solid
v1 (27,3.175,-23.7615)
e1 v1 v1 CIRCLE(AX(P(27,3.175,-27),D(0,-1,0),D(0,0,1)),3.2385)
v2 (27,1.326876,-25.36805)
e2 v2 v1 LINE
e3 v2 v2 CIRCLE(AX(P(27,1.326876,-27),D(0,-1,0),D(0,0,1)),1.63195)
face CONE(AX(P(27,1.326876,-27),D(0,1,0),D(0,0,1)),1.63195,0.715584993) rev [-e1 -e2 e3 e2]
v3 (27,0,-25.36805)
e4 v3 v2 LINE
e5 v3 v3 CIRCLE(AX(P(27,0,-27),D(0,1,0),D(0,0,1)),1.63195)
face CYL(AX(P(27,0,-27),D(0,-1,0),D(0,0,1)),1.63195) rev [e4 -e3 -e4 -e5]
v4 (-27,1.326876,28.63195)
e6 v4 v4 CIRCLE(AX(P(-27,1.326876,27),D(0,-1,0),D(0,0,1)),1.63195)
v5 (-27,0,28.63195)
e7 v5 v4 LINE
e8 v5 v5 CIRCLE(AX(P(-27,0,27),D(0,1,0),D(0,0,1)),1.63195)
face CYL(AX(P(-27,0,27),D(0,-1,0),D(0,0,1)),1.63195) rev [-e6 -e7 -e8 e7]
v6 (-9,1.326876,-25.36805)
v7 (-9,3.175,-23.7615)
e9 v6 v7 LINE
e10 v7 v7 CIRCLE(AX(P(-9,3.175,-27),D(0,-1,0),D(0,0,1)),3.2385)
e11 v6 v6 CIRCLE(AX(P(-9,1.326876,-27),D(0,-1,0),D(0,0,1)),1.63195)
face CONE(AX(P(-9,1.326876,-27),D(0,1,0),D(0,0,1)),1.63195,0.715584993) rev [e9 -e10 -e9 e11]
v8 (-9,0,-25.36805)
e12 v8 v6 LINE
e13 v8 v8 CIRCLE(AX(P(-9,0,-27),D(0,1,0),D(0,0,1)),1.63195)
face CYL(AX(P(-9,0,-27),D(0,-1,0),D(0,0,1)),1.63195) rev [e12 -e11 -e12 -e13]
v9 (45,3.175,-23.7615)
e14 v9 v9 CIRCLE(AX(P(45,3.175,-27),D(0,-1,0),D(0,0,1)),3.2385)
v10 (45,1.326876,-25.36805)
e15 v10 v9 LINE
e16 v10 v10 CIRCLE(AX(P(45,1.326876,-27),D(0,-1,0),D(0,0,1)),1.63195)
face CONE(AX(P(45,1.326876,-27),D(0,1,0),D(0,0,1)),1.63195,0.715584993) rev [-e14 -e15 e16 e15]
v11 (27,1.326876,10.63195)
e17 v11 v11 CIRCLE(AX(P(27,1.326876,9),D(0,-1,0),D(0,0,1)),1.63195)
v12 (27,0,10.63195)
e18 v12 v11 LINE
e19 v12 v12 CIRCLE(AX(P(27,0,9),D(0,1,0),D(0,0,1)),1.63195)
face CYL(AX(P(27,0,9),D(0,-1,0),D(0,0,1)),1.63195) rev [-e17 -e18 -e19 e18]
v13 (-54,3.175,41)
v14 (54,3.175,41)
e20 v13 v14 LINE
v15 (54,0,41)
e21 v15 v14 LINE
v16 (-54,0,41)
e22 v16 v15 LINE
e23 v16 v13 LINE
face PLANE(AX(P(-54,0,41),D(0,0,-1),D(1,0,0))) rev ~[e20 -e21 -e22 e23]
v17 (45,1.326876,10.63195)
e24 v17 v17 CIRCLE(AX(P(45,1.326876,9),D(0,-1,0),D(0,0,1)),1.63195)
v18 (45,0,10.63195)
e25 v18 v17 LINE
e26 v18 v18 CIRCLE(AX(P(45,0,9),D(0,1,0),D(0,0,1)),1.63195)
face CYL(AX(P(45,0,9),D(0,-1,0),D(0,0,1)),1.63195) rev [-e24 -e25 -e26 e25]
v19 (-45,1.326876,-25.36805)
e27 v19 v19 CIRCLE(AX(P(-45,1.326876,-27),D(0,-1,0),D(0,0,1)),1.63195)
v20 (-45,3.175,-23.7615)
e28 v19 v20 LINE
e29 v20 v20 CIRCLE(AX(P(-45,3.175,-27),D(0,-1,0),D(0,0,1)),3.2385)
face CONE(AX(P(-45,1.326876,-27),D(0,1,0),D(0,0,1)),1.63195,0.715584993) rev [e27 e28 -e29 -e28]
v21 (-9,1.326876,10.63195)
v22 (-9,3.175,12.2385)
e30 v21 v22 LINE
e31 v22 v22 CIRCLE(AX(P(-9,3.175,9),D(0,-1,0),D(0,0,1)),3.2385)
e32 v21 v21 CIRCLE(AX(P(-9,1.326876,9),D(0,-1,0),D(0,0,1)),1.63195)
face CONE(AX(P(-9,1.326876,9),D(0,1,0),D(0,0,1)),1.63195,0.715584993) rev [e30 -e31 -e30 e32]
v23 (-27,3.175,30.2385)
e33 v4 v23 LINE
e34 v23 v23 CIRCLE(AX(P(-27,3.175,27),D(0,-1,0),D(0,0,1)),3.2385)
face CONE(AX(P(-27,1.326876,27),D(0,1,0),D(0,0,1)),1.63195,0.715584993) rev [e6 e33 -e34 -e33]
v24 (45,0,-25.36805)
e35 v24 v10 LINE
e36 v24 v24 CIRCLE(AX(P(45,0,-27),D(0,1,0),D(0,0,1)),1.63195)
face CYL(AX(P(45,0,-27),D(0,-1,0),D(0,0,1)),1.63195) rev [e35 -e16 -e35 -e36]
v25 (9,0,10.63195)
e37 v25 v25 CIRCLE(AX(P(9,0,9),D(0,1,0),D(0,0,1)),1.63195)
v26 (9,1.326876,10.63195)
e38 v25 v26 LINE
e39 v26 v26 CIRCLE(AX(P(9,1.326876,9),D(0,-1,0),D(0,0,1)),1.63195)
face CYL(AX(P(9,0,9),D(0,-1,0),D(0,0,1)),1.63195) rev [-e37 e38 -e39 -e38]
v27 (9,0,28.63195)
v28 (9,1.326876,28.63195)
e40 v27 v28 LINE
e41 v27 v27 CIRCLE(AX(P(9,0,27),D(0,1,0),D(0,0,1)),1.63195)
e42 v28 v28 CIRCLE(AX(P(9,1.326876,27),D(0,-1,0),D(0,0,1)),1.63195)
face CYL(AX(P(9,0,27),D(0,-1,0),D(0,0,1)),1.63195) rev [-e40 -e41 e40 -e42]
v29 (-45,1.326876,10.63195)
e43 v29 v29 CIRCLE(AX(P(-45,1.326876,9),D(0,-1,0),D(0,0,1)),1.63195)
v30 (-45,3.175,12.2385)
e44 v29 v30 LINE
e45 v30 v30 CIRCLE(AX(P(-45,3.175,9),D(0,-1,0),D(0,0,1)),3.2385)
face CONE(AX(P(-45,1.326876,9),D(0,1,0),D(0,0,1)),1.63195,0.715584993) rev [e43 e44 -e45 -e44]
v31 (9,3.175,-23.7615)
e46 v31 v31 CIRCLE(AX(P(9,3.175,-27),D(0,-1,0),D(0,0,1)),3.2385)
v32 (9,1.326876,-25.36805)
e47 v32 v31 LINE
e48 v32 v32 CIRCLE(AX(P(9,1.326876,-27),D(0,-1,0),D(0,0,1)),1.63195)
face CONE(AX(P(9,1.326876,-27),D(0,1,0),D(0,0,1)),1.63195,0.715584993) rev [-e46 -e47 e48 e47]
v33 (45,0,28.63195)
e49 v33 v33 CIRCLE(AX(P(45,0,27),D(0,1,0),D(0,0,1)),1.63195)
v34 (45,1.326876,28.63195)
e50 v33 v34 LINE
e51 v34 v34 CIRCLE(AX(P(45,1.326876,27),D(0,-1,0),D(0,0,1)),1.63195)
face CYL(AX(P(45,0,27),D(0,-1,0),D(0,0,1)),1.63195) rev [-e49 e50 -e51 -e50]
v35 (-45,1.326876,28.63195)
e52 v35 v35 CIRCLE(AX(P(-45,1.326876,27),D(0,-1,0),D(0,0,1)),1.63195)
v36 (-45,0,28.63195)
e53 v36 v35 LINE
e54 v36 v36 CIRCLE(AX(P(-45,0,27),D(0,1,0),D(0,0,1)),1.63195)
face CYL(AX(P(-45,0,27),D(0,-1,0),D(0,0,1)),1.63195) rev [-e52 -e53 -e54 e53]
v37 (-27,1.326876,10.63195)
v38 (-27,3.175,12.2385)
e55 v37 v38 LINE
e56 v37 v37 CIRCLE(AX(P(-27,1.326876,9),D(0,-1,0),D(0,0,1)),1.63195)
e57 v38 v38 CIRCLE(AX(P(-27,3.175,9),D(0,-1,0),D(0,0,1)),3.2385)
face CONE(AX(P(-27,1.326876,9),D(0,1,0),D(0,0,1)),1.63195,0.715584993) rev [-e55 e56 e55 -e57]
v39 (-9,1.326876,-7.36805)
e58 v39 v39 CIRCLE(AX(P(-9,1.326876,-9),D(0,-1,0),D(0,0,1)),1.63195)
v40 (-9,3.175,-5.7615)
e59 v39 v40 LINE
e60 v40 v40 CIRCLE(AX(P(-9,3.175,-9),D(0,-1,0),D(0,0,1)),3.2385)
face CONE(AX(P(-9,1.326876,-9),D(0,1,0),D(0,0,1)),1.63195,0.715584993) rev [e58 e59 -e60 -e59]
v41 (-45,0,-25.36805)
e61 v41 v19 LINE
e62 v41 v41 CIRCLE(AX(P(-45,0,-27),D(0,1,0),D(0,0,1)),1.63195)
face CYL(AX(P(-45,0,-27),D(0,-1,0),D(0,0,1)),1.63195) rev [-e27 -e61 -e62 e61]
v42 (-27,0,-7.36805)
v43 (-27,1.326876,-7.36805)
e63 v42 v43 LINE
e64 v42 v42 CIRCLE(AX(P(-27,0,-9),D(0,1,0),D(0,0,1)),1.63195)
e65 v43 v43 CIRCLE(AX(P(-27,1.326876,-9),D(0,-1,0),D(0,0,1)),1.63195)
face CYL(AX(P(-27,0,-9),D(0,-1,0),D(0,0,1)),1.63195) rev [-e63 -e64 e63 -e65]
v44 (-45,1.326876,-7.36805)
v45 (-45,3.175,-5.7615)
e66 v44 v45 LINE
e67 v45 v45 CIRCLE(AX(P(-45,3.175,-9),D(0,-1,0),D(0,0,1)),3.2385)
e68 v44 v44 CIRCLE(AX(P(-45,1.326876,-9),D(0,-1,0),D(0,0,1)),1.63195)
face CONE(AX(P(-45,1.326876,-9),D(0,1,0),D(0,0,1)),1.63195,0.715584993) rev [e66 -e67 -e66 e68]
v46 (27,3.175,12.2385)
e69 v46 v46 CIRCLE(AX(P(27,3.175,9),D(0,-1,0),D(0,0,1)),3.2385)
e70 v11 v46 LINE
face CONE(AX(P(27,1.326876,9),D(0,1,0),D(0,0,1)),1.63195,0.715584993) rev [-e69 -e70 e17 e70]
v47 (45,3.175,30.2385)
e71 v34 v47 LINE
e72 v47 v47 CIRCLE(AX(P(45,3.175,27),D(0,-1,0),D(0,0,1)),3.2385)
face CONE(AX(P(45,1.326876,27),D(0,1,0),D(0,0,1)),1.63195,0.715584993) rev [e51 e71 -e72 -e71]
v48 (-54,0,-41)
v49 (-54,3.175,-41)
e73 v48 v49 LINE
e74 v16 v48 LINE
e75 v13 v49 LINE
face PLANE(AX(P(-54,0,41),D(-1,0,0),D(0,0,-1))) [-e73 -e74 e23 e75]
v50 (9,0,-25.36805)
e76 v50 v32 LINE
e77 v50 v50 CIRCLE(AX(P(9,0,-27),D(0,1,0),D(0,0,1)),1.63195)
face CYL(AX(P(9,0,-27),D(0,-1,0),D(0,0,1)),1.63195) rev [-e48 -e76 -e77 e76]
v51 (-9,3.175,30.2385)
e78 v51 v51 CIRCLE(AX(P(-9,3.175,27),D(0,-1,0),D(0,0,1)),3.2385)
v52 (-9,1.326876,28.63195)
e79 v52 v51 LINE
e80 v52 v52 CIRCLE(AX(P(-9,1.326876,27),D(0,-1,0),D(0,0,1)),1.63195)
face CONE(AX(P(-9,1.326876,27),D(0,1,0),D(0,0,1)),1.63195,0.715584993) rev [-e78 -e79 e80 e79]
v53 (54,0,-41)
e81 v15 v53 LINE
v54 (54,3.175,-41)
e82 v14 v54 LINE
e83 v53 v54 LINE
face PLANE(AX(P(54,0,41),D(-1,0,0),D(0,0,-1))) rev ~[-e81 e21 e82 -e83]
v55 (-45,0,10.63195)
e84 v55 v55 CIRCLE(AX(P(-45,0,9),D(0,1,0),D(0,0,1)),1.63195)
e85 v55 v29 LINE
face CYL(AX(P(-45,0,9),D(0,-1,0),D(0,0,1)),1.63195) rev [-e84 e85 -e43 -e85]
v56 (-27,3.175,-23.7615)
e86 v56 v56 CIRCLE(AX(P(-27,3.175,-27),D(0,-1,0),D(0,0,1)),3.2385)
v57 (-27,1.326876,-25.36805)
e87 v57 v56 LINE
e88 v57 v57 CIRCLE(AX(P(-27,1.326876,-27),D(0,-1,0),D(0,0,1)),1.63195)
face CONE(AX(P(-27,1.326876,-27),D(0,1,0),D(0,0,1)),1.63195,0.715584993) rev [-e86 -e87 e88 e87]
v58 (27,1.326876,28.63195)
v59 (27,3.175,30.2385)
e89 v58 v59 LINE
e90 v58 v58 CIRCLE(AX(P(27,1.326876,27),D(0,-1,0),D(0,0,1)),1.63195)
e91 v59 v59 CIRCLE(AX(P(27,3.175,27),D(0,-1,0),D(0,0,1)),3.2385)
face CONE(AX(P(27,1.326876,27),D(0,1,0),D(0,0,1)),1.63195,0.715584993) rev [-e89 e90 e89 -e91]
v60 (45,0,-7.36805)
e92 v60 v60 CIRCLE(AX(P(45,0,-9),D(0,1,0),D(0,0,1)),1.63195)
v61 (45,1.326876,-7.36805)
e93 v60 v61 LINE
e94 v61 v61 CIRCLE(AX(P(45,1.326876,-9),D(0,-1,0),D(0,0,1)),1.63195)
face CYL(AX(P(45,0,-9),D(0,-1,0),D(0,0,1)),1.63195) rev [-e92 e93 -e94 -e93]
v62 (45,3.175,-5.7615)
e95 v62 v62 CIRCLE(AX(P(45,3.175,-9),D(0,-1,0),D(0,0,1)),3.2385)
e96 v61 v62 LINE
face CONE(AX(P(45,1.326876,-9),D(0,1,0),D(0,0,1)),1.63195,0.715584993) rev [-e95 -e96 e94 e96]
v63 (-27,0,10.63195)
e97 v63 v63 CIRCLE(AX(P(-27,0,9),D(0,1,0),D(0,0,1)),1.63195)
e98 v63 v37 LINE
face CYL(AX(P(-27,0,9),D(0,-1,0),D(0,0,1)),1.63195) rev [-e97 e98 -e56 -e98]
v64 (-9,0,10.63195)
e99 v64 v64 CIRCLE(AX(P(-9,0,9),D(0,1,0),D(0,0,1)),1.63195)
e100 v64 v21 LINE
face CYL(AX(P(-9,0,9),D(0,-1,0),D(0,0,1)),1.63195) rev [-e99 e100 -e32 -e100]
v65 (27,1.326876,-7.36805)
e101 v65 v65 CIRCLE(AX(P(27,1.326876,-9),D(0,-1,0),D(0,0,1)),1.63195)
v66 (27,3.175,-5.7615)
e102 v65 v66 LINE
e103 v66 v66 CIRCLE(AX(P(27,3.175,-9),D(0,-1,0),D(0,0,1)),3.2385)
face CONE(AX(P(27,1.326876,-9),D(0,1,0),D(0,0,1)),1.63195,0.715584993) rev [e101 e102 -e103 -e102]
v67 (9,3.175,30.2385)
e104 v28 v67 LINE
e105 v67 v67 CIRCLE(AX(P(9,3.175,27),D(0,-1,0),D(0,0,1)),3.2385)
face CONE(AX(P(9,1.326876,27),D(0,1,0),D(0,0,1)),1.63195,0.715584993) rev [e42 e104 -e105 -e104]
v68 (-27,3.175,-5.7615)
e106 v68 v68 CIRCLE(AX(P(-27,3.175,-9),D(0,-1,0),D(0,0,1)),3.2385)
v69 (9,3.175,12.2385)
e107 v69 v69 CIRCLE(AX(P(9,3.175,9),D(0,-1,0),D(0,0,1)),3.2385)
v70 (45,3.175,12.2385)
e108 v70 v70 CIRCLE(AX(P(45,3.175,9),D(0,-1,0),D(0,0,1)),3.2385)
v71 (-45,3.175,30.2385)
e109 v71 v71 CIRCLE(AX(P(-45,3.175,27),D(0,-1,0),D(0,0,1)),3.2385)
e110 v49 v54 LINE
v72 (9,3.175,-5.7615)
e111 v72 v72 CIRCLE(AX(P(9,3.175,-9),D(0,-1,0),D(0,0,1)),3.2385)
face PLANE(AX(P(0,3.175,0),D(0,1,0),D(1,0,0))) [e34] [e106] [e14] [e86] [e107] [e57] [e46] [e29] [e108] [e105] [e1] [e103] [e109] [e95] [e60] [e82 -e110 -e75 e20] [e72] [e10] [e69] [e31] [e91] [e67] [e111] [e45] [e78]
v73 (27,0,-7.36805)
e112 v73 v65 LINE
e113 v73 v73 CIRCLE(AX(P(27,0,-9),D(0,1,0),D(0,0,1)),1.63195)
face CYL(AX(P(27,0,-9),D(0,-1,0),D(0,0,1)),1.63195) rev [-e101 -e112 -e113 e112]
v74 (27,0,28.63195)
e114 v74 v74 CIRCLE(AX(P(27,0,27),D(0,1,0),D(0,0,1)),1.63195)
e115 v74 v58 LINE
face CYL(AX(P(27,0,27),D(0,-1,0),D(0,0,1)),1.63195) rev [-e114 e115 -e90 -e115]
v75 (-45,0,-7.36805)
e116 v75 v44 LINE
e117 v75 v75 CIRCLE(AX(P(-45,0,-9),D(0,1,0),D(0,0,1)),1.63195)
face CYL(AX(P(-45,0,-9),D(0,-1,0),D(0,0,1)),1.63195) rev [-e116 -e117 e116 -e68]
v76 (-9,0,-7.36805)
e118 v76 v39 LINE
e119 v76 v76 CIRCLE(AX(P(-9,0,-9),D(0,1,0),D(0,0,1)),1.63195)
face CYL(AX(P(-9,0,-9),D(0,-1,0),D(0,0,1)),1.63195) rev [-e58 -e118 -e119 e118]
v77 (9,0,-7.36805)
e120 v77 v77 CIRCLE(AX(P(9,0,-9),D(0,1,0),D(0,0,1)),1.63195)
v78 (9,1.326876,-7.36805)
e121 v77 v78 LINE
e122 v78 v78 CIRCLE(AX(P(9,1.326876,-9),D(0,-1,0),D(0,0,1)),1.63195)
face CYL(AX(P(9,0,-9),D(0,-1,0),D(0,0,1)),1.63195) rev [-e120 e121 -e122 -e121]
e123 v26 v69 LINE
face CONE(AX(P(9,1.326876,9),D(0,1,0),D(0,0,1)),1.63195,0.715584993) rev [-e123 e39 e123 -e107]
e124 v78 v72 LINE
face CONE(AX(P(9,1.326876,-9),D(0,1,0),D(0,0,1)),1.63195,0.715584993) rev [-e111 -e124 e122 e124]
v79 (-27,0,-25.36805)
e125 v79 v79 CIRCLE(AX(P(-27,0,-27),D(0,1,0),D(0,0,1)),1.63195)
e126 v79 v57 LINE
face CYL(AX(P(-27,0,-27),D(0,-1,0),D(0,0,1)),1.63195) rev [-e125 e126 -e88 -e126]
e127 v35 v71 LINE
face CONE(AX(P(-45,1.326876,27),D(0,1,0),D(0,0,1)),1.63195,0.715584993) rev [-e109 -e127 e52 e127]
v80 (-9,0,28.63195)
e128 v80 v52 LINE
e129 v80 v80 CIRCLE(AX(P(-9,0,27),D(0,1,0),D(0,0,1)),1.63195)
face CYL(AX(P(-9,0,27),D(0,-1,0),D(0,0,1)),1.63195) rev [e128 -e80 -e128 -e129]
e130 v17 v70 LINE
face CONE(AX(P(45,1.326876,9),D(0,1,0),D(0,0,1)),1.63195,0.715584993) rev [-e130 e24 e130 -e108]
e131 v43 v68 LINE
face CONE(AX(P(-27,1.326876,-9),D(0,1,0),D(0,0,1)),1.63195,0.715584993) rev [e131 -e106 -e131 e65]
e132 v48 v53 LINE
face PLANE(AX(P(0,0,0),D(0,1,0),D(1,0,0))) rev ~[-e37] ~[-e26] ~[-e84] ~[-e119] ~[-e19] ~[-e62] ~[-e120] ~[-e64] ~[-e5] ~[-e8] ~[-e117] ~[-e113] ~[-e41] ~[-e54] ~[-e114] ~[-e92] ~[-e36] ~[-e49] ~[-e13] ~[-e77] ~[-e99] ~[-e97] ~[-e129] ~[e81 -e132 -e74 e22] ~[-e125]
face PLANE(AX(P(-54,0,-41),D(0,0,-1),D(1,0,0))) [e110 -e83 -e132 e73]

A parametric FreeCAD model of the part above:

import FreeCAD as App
import Part
import Sketcher
Q = App.Units.Quantity

doc = App.newDocument("Part")
body = doc.addObject("PartDesign::Body", "Body")

# Sketch on XZ plane
sketch1 = doc.addObject("Sketcher::SketchObject", "Sketch")
body.addObject(sketch1)
sketch1.AttachmentSupport = (doc.XZ_Plane, [""])
sketch1.MapMode = "FlatFace"
sketch1.addGeometry([
    Part.LineSegment(App.Vector(-54, -41, 0), App.Vector(-54, 41, 0)),  # 0
    Part.LineSegment(App.Vector(-54, 41, 0), App.Vector(54, 41, 0)),  # 1
    Part.LineSegment(App.Vector(54, 41, 0), App.Vector(54, -41, 0)),  # 2
    Part.LineSegment(App.Vector(54, -41, 0), App.Vector(-54, -41, 0)),  # 3
    Part.Circle(App.Vector(-45, 27, 0), App.Vector(0, 0, 1), 1.6),  # 4
    Part.Circle(App.Vector(-27, 27, 0), App.Vector(0, 0, 1), 1.6),  # 5
    Part.Circle(App.Vector(-9, 27, 0), App.Vector(0, 0, 1), 1.6),  # 6
    Part.Circle(App.Vector(-45, 9, 0), App.Vector(0, 0, 1), 1.6),  # 7
    Part.Circle(App.Vector(-27, 9, 0), App.Vector(0, 0, 1), 1.6),  # 8
    Part.Circle(App.Vector(-9, 9, 0), App.Vector(0, 0, 1), 1.6),  # 9
    Part.Circle(App.Vector(9, 27, 0), App.Vector(0, 0, 1), 1.6),  # 10
    Part.Circle(App.Vector(27, 27, 0), App.Vector(0, 0, 1), 1.6),  # 11
    Part.Circle(App.Vector(45, 27, 0), App.Vector(0, 0, 1), 1.6),  # 12
    Part.Circle(App.Vector(9, 9, 0), App.Vector(0, 0, 1), 1.6),  # 13
    Part.Circle(App.Vector(27, 9, 0), App.Vector(0, 0, 1), 1.6),  # 14
    Part.Circle(App.Vector(45, 9, 0), App.Vector(0, 0, 1), 1.6),  # 15
    Part.Circle(App.Vector(-45, -9, 0), App.Vector(0, 0, 1), 1.6),  # 16
    Part.Circle(App.Vector(-27, -9, 0), App.Vector(0, 0, 1), 1.6),  # 17
    Part.Circle(App.Vector(-9, -9, 0), App.Vector(0, 0, 1), 1.6),  # 18
    Part.Circle(App.Vector(-45, -27, 0), App.Vector(0, 0, 1), 1.6),  # 19
    Part.Circle(App.Vector(-27, -27, 0), App.Vector(0, 0, 1), 1.6),  # 20
    Part.Circle(App.Vector(-9, -27, 0), App.Vector(0, 0, 1), 1.6),  # 21
    Part.Circle(App.Vector(9, -9, 0), App.Vector(0, 0, 1), 1.6),  # 22
    Part.Circle(App.Vector(27, -9, 0), App.Vector(0, 0, 1), 1.6),  # 23
    Part.Circle(App.Vector(45, -9, 0), App.Vector(0, 0, 1), 1.6),  # 24
    Part.Circle(App.Vector(9, -27, 0), App.Vector(0, 0, 1), 1.6),  # 25
    Part.Circle(App.Vector(27, -27, 0), App.Vector(0, 0, 1), 1.6),  # 26
    Part.Circle(App.Vector(45, -27, 0), App.Vector(0, 0, 1), 1.6),  # 27
], False)
sketch1.addConstraint([
    Sketcher.Constraint("Coincident", 0, 2, 1, 1),
    Sketcher.Constraint("Coincident", 1, 2, 2, 1),
    Sketcher.Constraint("Coincident", 2, 2, 3, 1),
    Sketcher.Constraint("Coincident", 3, 2, 0, 1),
    Sketcher.Constraint("Vertical", 0),
    Sketcher.Constraint("Horizontal", 1),
    Sketcher.Constraint("Vertical", 2),
    Sketcher.Constraint("Horizontal", 3),
    Sketcher.Constraint("Equal", 4, 5),
    Sketcher.Constraint("Equal", 5, 6),
    Sketcher.Constraint("Equal", 6, 7),
    Sketcher.Constraint("Equal", 7, 8),
    Sketcher.Constraint("Equal", 8, 9),
    Sketcher.Constraint("Equal", 9, 10),
    Sketcher.Constraint("Equal", 10, 11),
    Sketcher.Constraint("Equal", 11, 12),
    Sketcher.Constraint("Equal", 12, 13),
    Sketcher.Constraint("Equal", 13, 14),
    Sketcher.Constraint("Equal", 14, 15),
    Sketcher.Constraint("Equal", 15, 16),
    Sketcher.Constraint("Equal", 16, 17),
    Sketcher.Constraint("Equal", 17, 18),
    Sketcher.Constraint("Equal", 18, 19),
    Sketcher.Constraint("Equal", 19, 20),
    Sketcher.Constraint("Equal", 20, 21),
    Sketcher.Constraint("Equal", 21, 22),
    Sketcher.Constraint("Equal", 22, 23),
    Sketcher.Constraint("Equal", 23, 24),
    Sketcher.Constraint("Equal", 24, 25),
    Sketcher.Constraint("Equal", 25, 26),
    Sketcher.Constraint("Equal", 26, 27),
    Sketcher.Constraint("Symmetric", 15, 3, 16, 3, -1, 1),
    Sketcher.Constraint("Symmetric", 14, 3, 17, 3, -1, 1),
    Sketcher.Constraint("Symmetric", 13, 3, 18, 3, -1, 1),
    Sketcher.Constraint("Symmetric", 12, 3, 19, 3, -1, 1),
    Sketcher.Constraint("Symmetric", 11, 3, 20, 3, -1, 1),
    Sketcher.Constraint("Symmetric", 10, 3, 21, 3, -1, 1),
    Sketcher.Constraint("Symmetric", 9, 3, 22, 3, -1, 1),
    Sketcher.Constraint("Symmetric", 8, 3, 23, 3, -1, 1),
    Sketcher.Constraint("Symmetric", 7, 3, 24, 3, -1, 1),
    Sketcher.Constraint("Symmetric", 6, 3, 25, 3, -1, 1),
    Sketcher.Constraint("Symmetric", 5, 3, 26, 3, -1, 1),
    Sketcher.Constraint("Symmetric", 4, 3, 27, 3, -1, 1),
    Sketcher.Constraint("Symmetric", 0, 2, 2, 2, -1, 1),
    Sketcher.Constraint("Symmetric", 6, 3, 10, 3, -2),
    Sketcher.Constraint("Symmetric", 5, 3, 11, 3, -2),
    Sketcher.Constraint("Symmetric", 4, 3, 12, 3, -2),
    Sketcher.Constraint("Symmetric", 9, 3, 13, 3, -2),
    Sketcher.Constraint("Symmetric", 8, 3, 14, 3, -2),
    Sketcher.Constraint("Symmetric", 7, 3, 15, 3, -2),
    Sketcher.Constraint("Horizontal", 4, 3, 5, 3),
    Sketcher.Constraint("Horizontal", 5, 3, 6, 3),
    Sketcher.Constraint("Horizontal", 7, 3, 8, 3),
    Sketcher.Constraint("Horizontal", 8, 3, 9, 3),
    Sketcher.Constraint("Vertical", 4, 3, 7, 3),
    Sketcher.Constraint("Vertical", 5, 3, 8, 3),
    Sketcher.Constraint("Vertical", 6, 3, 9, 3),
    Sketcher.Constraint("DistanceX", 1, 1, 1, 2, Q("108 mm")),
    Sketcher.Constraint("DistanceY", 0, 1, 0, 2, Q("82 mm")),
    Sketcher.Constraint("DistanceX", 4, 3, -1, 1, Q("45 mm")),
    Sketcher.Constraint("DistanceY", -1, 1, 4, 3, Q("27 mm")),
    Sketcher.Constraint("DistanceX", 5, 3, -1, 1, Q("27 mm")),
    Sketcher.Constraint("DistanceX", 6, 3, -1, 1, Q("9 mm")),
    Sketcher.Constraint("DistanceY", -1, 1, 7, 3, Q("9 mm")),
    Sketcher.Constraint("Diameter", 4, Q("3.2639 mm")),
])
pad1 = doc.addObject("PartDesign::Pad", "Pad")
body.addObject(pad1)
pad1.Profile = sketch1
pad1.Length = 3.175
pad1.Reversed = True

# Sketch on YZ plane
sketch2 = doc.addObject("Sketcher::SketchObject", "Sketch001")
body.addObject(sketch2)
sketch2.AttachmentSupport = (doc.YZ_Plane, [""])
sketch2.MapMode = "FlatFace"
sketch2.AttachmentOffset = App.Placement(App.Vector(0, 0, 45), App.Rotation())
sketch2.addGeometry([
    Part.LineSegment(App.Vector(0, 27, 0), App.Vector(3.2, 27, 0)),  # 0
    Part.LineSegment(App.Vector(3.2, 27, 0), App.Vector(3.2, 30.2, 0)),  # 1
    Part.LineSegment(App.Vector(3.2, 30.2, 0), App.Vector(1.3, 28.6, 0)),  # 2
    Part.LineSegment(App.Vector(1.3, 28.6, 0), App.Vector(0, 28.6, 0)),  # 3
    Part.LineSegment(App.Vector(0, 28.6, 0), App.Vector(0, 27, 0)),  # 4
], False)
sketch2.addGeometry(Part.LineSegment(App.Vector(3.2, 27, 0), App.Vector(0, 27, 0)), True)  # axis
sketch2.addConstraint([
    Sketcher.Constraint("Coincident", 0, 2, 1, 1),
    Sketcher.Constraint("Coincident", 1, 2, 2, 1),
    Sketcher.Constraint("Coincident", 2, 2, 3, 1),
    Sketcher.Constraint("Coincident", 3, 2, 4, 1),
    Sketcher.Constraint("Coincident", 4, 2, 0, 1),
    Sketcher.Constraint("Horizontal", 0),
    Sketcher.Constraint("Vertical", 1),
    Sketcher.Constraint("Horizontal", 3),
    Sketcher.Constraint("Vertical", 4),
    Sketcher.Constraint("Horizontal", 5),
    Sketcher.Constraint("Coincident", 5, 1, 0, 2),
    Sketcher.Constraint("PointOnObject", 3, 2, -2),
    Sketcher.Constraint("PointOnObject", 5, 2, -2),
    Sketcher.Constraint("Angle", 2, Q("-139 deg")),
    Sketcher.Constraint("DistanceY", -1, 1, 0, 2, Q("27 mm")),
    Sketcher.Constraint("DistanceX", 0, 1, 0, 2, Q("3.175 mm")),
    Sketcher.Constraint("DistanceY", 1, 1, 1, 2, Q("3.2385 mm")),
    Sketcher.Constraint("DistanceY", 4, 2, 4, 1, Q("1.63195 mm")),
])
groove = doc.addObject("PartDesign::Groove", "Groove")
body.addObject(groove)
groove.Profile = sketch2
groove.ReferenceAxis = (sketch2, ["Axis0"])
groove.Angle = 360
doc.recompute()

linearpattern = doc.addObject("PartDesign::LinearPattern", "LinearPattern")
body.addObject(linearpattern)
linearpattern.Originals = [groove]
linearpattern.Direction = (doc.X_Axis, [""])
linearpattern.Mode = "offset"
linearpattern.Offset = 18
linearpattern.Occurrences = 2
linearpattern.Reversed = True
body.Tip = linearpattern
doc.recompute()

linearpattern2 = doc.addObject("PartDesign::LinearPattern", "LinearPattern001")
body.addObject(linearpattern2)
linearpattern2.Originals = [groove]
linearpattern2.Direction = (doc.X_Axis, [""])
linearpattern2.Mode = "offset"
linearpattern2.Offset = 36
linearpattern2.Occurrences = 2
linearpattern2.Reversed = True
body.Tip = linearpattern2
doc.recompute()

linearpattern3 = doc.addObject("PartDesign::LinearPattern", "LinearPattern002")
body.addObject(linearpattern3)
linearpattern3.Originals = [groove]
linearpattern3.Direction = (doc.X_Axis, [""])
linearpattern3.Mode = "offset"
linearpattern3.Offset = 54
linearpattern3.Occurrences = 2
linearpattern3.Reversed = True
body.Tip = linearpattern3
doc.recompute()

linearpattern4 = doc.addObject("PartDesign::LinearPattern", "LinearPattern003")
body.addObject(linearpattern4)
linearpattern4.Originals = [groove]
linearpattern4.Direction = (doc.X_Axis, [""])
linearpattern4.Mode = "offset"
linearpattern4.Offset = 72
linearpattern4.Occurrences = 2
linearpattern4.Reversed = True
body.Tip = linearpattern4
doc.recompute()

linearpattern5 = doc.addObject("PartDesign::LinearPattern", "LinearPattern004")
body.addObject(linearpattern5)
linearpattern5.Originals = [groove]
linearpattern5.Direction = (doc.X_Axis, [""])
linearpattern5.Mode = "offset"
linearpattern5.Offset = 90
linearpattern5.Occurrences = 2
linearpattern5.Reversed = True
body.Tip = linearpattern5
doc.recompute()

datumline = doc.addObject("PartDesign::Line", "DatumLine")
body.addObject(datumline)
datumline.Placement = App.Placement(App.Vector(0, 0, 0), App.Rotation(App.Vector(0, 0, 1), App.Vector(-0.980580676, 0, -0.196116135)))
linearpattern6 = doc.addObject("PartDesign::LinearPattern", "LinearPattern005")
body.addObject(linearpattern6)
linearpattern6.Originals = [groove]
linearpattern6.Direction = (datumline, [""])
linearpattern6.Mode = "offset"
linearpattern6.Offset = 91.782351
linearpattern6.Occurrences = 2
body.Tip = linearpattern6
doc.recompute()

datumline2 = doc.addObject("PartDesign::Line", "DatumLine001")
body.addObject(datumline2)
datumline2.Placement = App.Placement(App.Vector(0, 0, 0), App.Rotation(App.Vector(0, 0, 1), App.Vector(-0.9701425, 0, -0.242535625)))
linearpattern7 = doc.addObject("PartDesign::LinearPattern", "LinearPattern006")
body.addObject(linearpattern7)
linearpattern7.Originals = [groove]
linearpattern7.Direction = (datumline2, [""])
linearpattern7.Mode = "offset"
linearpattern7.Offset = 74.215901
linearpattern7.Occurrences = 2
body.Tip = linearpattern7
doc.recompute()

datumline3 = doc.addObject("PartDesign::Line", "DatumLine002")
body.addObject(datumline3)
datumline3.Placement = App.Placement(App.Vector(0, 0, 0), App.Rotation(App.Vector(0, 0, 1), App.Vector(-0.948683298, 0, -0.316227766)))
linearpattern8 = doc.addObject("PartDesign::LinearPattern", "LinearPattern007")
body.addObject(linearpattern8)
linearpattern8.Originals = [groove]
linearpattern8.Direction = (datumline3, [""])
linearpattern8.Mode = "offset"
linearpattern8.Offset = 56.920998
linearpattern8.Occurrences = 2
body.Tip = linearpattern8
doc.recompute()

datumline4 = doc.addObject("PartDesign::Line", "DatumLine003")
body.addObject(datumline4)
datumline4.Placement = App.Placement(App.Vector(0, 0, 0), App.Rotation(App.Vector(0, 0, 1), App.Vector(-0.894427191, 0, -0.447213595)))
linearpattern9 = doc.addObject("PartDesign::LinearPattern", "LinearPattern008")
body.addObject(linearpattern9)
linearpattern9.Originals = [groove]
linearpattern9.Direction = (datumline4, [""])
linearpattern9.Mode = "offset"
linearpattern9.Offset = 40.249224
linearpattern9.Occurrences = 2
body.Tip = linearpattern9
doc.recompute()

datumline5 = doc.addObject("PartDesign::Line", "DatumLine004")
body.addObject(datumline5)
datumline5.Placement = App.Placement(App.Vector(0, 0, 0), App.Rotation(App.Vector(0, 0, 1), App.Vector(-0.707106781, 0, -0.707106781)))
linearpattern10 = doc.addObject("PartDesign::LinearPattern", "LinearPattern009")
body.addObject(linearpattern10)
linearpattern10.Originals = [groove]
linearpattern10.Direction = (datumline5, [""])
linearpattern10.Mode = "offset"
linearpattern10.Offset = 25.455844
linearpattern10.Occurrences = 2
body.Tip = linearpattern10
doc.recompute()

linearpattern11 = doc.addObject("PartDesign::LinearPattern", "LinearPattern010")
body.addObject(linearpattern11)
linearpattern11.Originals = [groove]
linearpattern11.Direction = (doc.Z_Axis, [""])
linearpattern11.Mode = "offset"
linearpattern11.Offset = 18
linearpattern11.Occurrences = 2
linearpattern11.Reversed = True
body.Tip = linearpattern11
doc.recompute()

linearpattern12 = doc.addObject("PartDesign::LinearPattern", "LinearPattern011")
body.addObject(linearpattern12)
linearpattern12.Originals = [groove]
linearpattern12.Direction = (doc.Z_Axis, [""])
linearpattern12.Mode = "offset"
linearpattern12.Offset = 36
linearpattern12.Occurrences = 2
linearpattern12.Reversed = True
body.Tip = linearpattern12
doc.recompute()

datumline6 = doc.addObject("PartDesign::Line", "DatumLine005")
body.addObject(datumline6)
datumline6.Placement = App.Placement(App.Vector(0, 0, 0), App.Rotation(App.Vector(0, 0, 1), App.Vector(-0.447213595, 0, -0.894427191)))
linearpattern13 = doc.addObject("PartDesign::LinearPattern", "LinearPattern012")
body.addObject(linearpattern13)
linearpattern13.Originals = [groove]
linearpattern13.Direction = (datumline6, [""])
linearpattern13.Mode = "offset"
linearpattern13.Offset = 40.249224
linearpattern13.Occurrences = 2
body.Tip = linearpattern13
doc.recompute()

datumline7 = doc.addObject("PartDesign::Line", "DatumLine006")
body.addObject(datumline7)
datumline7.Placement = App.Placement(App.Vector(0, 0, 0), App.Rotation(App.Vector(0, 0, 1), App.Vector(-0.707106781, 0, -0.707106781)))
linearpattern14 = doc.addObject("PartDesign::LinearPattern", "LinearPattern013")
body.addObject(linearpattern14)
linearpattern14.Originals = [groove]
linearpattern14.Direction = (datumline7, [""])
linearpattern14.Mode = "offset"
linearpattern14.Offset = 50.911688
linearpattern14.Occurrences = 2
body.Tip = linearpattern14
doc.recompute()

datumline8 = doc.addObject("PartDesign::Line", "DatumLine007")
body.addObject(datumline8)
datumline8.Placement = App.Placement(App.Vector(0, 0, 0), App.Rotation(App.Vector(0, 0, 1), App.Vector(-0.832050294, 0, -0.554700196)))
linearpattern15 = doc.addObject("PartDesign::LinearPattern", "LinearPattern014")
body.addObject(linearpattern15)
linearpattern15.Originals = [groove]
linearpattern15.Direction = (datumline8, [""])
linearpattern15.Mode = "offset"
linearpattern15.Offset = 64.899923
linearpattern15.Occurrences = 2
body.Tip = linearpattern15
doc.recompute()

datumline9 = doc.addObject("PartDesign::Line", "DatumLine008")
body.addObject(datumline9)
datumline9.Placement = App.Placement(App.Vector(0, 0, 0), App.Rotation(App.Vector(0, 0, 1), App.Vector(-0.894427191, 0, -0.447213595)))
linearpattern16 = doc.addObject("PartDesign::LinearPattern", "LinearPattern015")
body.addObject(linearpattern16)
linearpattern16.Originals = [groove]
linearpattern16.Direction = (datumline9, [""])
linearpattern16.Mode = "offset"
linearpattern16.Offset = 80.498447
linearpattern16.Occurrences = 2
body.Tip = linearpattern16
doc.recompute()

datumline10 = doc.addObject("PartDesign::Line", "DatumLine009")
body.addObject(datumline10)
datumline10.Placement = App.Placement(App.Vector(0, 0, 0), App.Rotation(App.Vector(0, 0, 1), App.Vector(-0.928476691, 0, -0.371390676)))
linearpattern17 = doc.addObject("PartDesign::LinearPattern", "LinearPattern016")
body.addObject(linearpattern17)
linearpattern17.Originals = [groove]
linearpattern17.Direction = (datumline10, [""])
linearpattern17.Mode = "offset"
linearpattern17.Offset = 96.932967
linearpattern17.Occurrences = 2
body.Tip = linearpattern17
doc.recompute()

datumline11 = doc.addObject("PartDesign::Line", "DatumLine010")
body.addObject(datumline11)
datumline11.Placement = App.Placement(App.Vector(0, 0, 0), App.Rotation(App.Vector(0, 0, 1), App.Vector(-0.857492926, 0, -0.514495755)))
linearpattern18 = doc.addObject("PartDesign::LinearPattern", "LinearPattern017")
body.addObject(linearpattern18)
linearpattern18.Originals = [groove]
linearpattern18.Direction = (datumline11, [""])
linearpattern18.Mode = "offset"
linearpattern18.Offset = 104.957134
linearpattern18.Occurrences = 2
body.Tip = linearpattern18
doc.recompute()

datumline12 = doc.addObject("PartDesign::Line", "DatumLine011")
body.addObject(datumline12)
datumline12.Placement = App.Placement(App.Vector(0, 0, 0), App.Rotation(App.Vector(0, 0, 1), App.Vector(-0.8, 0, -0.6)))
linearpattern19 = doc.addObject("PartDesign::LinearPattern", "LinearPattern018")
body.addObject(linearpattern19)
linearpattern19.Originals = [groove]
linearpattern19.Direction = (datumline12, [""])
linearpattern19.Mode = "offset"
linearpattern19.Offset = 90
linearpattern19.Occurrences = 2
body.Tip = linearpattern19
doc.recompute()

datumline13 = doc.addObject("PartDesign::Line", "DatumLine012")
body.addObject(datumline13)
datumline13.Placement = App.Placement(App.Vector(0, 0, 0), App.Rotation(App.Vector(0, 0, 1), App.Vector(-0.707106781, 0, -0.707106781)))
linearpattern20 = doc.addObject("PartDesign::LinearPattern", "LinearPattern019")
body.addObject(linearpattern20)
linearpattern20.Originals = [groove]
linearpattern20.Direction = (datumline13, [""])
linearpattern20.Mode = "offset"
linearpattern20.Offset = 76.367532
linearpattern20.Occurrences = 2
body.Tip = linearpattern20
doc.recompute()

datumline14 = doc.addObject("PartDesign::Line", "DatumLine013")
body.addObject(datumline14)
datumline14.Placement = App.Placement(App.Vector(0, 0, 0), App.Rotation(App.Vector(0, 0, 1), App.Vector(-0.554700196, 0, -0.832050294)))
linearpattern21 = doc.addObject("PartDesign::LinearPattern", "LinearPattern020")
body.addObject(linearpattern21)
linearpattern21.Originals = [groove]
linearpattern21.Direction = (datumline14, [""])
linearpattern21.Mode = "offset"
linearpattern21.Offset = 64.899923
linearpattern21.Occurrences = 2
body.Tip = linearpattern21
doc.recompute()

datumline15 = doc.addObject("PartDesign::Line", "DatumLine014")
body.addObject(datumline15)
datumline15.Placement = App.Placement(App.Vector(0, 0, 0), App.Rotation(App.Vector(0, 0, 1), App.Vector(-0.316227766, 0, -0.948683298)))
linearpattern22 = doc.addObject("PartDesign::LinearPattern", "LinearPattern021")
body.addObject(linearpattern22)
linearpattern22.Originals = [groove]
linearpattern22.Direction = (datumline15, [""])
linearpattern22.Mode = "offset"
linearpattern22.Offset = 56.920998
linearpattern22.Occurrences = 2
body.Tip = linearpattern22
doc.recompute()

linearpattern23 = doc.addObject("PartDesign::LinearPattern", "LinearPattern022")
body.addObject(linearpattern23)
linearpattern23.Originals = [groove]
linearpattern23.Direction = (doc.Z_Axis, [""])
linearpattern23.Mode = "offset"
linearpattern23.Offset = 54
linearpattern23.Occurrences = 2
linearpattern23.Reversed = True
body.Tip = linearpattern23

doc.recompute()
